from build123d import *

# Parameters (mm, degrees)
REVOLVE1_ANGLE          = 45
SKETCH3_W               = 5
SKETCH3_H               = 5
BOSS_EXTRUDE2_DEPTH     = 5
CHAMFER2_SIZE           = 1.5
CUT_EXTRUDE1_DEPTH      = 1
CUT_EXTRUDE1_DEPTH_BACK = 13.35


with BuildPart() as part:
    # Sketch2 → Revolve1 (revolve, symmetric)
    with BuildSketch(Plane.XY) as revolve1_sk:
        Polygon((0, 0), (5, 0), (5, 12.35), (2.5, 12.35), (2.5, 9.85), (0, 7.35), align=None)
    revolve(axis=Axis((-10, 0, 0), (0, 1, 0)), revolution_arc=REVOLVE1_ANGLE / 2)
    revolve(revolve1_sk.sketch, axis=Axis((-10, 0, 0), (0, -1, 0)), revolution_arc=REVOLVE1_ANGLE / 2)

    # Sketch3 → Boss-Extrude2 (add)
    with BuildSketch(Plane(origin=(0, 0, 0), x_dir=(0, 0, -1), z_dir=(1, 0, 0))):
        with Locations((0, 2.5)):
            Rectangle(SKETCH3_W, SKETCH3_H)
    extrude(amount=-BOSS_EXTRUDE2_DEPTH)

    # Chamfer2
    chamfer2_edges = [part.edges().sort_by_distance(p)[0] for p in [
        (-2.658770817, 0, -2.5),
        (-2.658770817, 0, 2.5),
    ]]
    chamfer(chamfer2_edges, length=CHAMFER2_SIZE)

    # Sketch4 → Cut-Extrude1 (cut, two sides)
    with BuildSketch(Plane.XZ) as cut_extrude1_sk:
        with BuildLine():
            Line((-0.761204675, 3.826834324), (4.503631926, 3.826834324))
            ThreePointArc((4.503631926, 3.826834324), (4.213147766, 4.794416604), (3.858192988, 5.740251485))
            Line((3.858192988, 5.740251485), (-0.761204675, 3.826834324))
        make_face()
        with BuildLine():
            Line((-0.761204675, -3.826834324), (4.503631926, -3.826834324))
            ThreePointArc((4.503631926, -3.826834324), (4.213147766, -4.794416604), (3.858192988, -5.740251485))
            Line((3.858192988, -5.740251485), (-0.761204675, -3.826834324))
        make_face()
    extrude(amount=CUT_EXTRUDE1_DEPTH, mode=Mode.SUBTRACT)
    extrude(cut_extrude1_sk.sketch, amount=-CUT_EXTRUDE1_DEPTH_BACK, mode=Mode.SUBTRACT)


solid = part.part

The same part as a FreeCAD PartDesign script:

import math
import FreeCAD as App
import Part
import Sketcher

V = App.Vector
Q = App.Units.Quantity


def edges_at(feature, points):
    """Names of the edges that pass closest to the given points."""
    edges = feature.Shape.Edges
    near = lambda p: min(range(len(edges)), key=lambda i: edges[i].distToShape(Part.Vertex(*p))[0])
    return sorted({f"Edge{near(p) + 1}" for p in points})


def add_polygon(sketch, points):
    """Adds a closed chain of lines whose ends are joined by coincident constraints."""
    first, n = sketch.GeometryCount, len(points)
    for a, b in zip(points, points[1:] + points[:1]):
        sketch.addGeometry(Part.LineSegment(App.Vector(*a, 0), App.Vector(*b, 0)), False)
    for i in range(n):
        sketch.addConstraint(Sketcher.Constraint("Coincident", first + i, 2, first + (i + 1) % n, 1))

doc = App.newDocument("Part")
body = doc.addObject("PartDesign::Body", "Body")

sketch1 = body.newObject("Sketcher::SketchObject", "Sketch")
sketch1.AttachmentSupport = (doc.getObject("XY_Plane"), [""])
sketch1.MapMode = "FlatFace"
add_polygon(sketch1, [(0, 0), (5, 0), (5, 12.3), (2.5, 12.3), (2.5, 9.8), (0, 7.3)])
sketch1.addGeometry(Part.LineSegment(V(-10, 0, 0), V(-10, 12.3, 0)), True)
sketch1.addConstraint(Sketcher.Constraint("Horizontal", 0))
sketch1.addConstraint(Sketcher.Constraint("Vertical", 1))
sketch1.addConstraint(Sketcher.Constraint("Horizontal", 2))
sketch1.addConstraint(Sketcher.Constraint("Vertical", 3))
sketch1.addConstraint(Sketcher.Constraint("Vertical", 5))
sketch1.addConstraint(Sketcher.Constraint("Vertical", 6))
sketch1.addConstraint(Sketcher.Constraint("Coincident", 5, 2, -1, 1))
sketch1.addConstraint(Sketcher.Constraint("PointOnObject", 6, 1, -1))
sketch1.addConstraint(Sketcher.Constraint("Horizontal", 2, 2, 6, 2))
sketch1.addConstraint(Sketcher.Constraint("Equal", 2, 3))
sketch1.addConstraint(Sketcher.Constraint("DistanceX", 0, 1, 0, 2, 5.0))
sketch1.addConstraint(Sketcher.Constraint("Angle", 4, Q("-135 deg")))
sketch1.addConstraint(Sketcher.Constraint("DistanceX", 2, 2, 2, 1, 2.5))
sketch1.addConstraint(Sketcher.Constraint("DistanceX", 6, 1, -1, 1, 10.0))
sketch1.addConstraint(Sketcher.Constraint("DistanceY", 1, 1, 1, 2, 12.35))
revolution = body.newObject("PartDesign::Revolution", "Revolution")
revolution.Profile = sketch1
revolution.ReferenceAxis = (sketch1, ["Axis0"])
revolution.Angle = 22.5

sketch2 = body.newObject("Sketcher::SketchObject", "Sketch001")
sketch2.AttachmentSupport = (doc.getObject("XY_Plane"), [""])
sketch2.MapMode = "FlatFace"
add_polygon(sketch2, [(0, 0), (5, 0), (5, 12.3), (2.5, 12.3), (2.5, 9.8), (0, 7.3)])
sketch2.addGeometry(Part.LineSegment(V(-10, 12.3, 0), V(-10, 0, 0)), True)
sketch2.addConstraint(Sketcher.Constraint("Horizontal", 0))
sketch2.addConstraint(Sketcher.Constraint("Vertical", 1))
sketch2.addConstraint(Sketcher.Constraint("Horizontal", 2))
sketch2.addConstraint(Sketcher.Constraint("Vertical", 3))
sketch2.addConstraint(Sketcher.Constraint("Vertical", 5))
sketch2.addConstraint(Sketcher.Constraint("Vertical", 6))
sketch2.addConstraint(Sketcher.Constraint("Coincident", 5, 2, -1, 1))
sketch2.addConstraint(Sketcher.Constraint("PointOnObject", 6, 2, -1))
sketch2.addConstraint(Sketcher.Constraint("Horizontal", 2, 2, 6, 1))
sketch2.addConstraint(Sketcher.Constraint("Equal", 2, 3))
sketch2.addConstraint(Sketcher.Constraint("DistanceX", 0, 1, 0, 2, 5.0))
sketch2.addConstraint(Sketcher.Constraint("Angle", 4, Q("-135 deg")))
sketch2.addConstraint(Sketcher.Constraint("DistanceX", 2, 2, 2, 1, 2.5))
sketch2.addConstraint(Sketcher.Constraint("DistanceX", 6, 1, -1, 1, 10.0))
sketch2.addConstraint(Sketcher.Constraint("DistanceY", 1, 1, 1, 2, 12.35))
revolution2 = body.newObject("PartDesign::Revolution", "Revolution001")
revolution2.Profile = sketch2
revolution2.ReferenceAxis = (sketch2, ["Axis0"])
revolution2.Angle = 22.5

sketch3 = body.newObject("Sketcher::SketchObject", "Sketch002")
sketch3.AttachmentSupport = (doc.getObject("YZ_Plane"), [""])
sketch3.MapMode = "FlatFace"
add_polygon(sketch3, [(5, 2), (0, 2), (0, -2), (5, -2)])
sketch3.addConstraint(Sketcher.Constraint("Horizontal", 0))
sketch3.addConstraint(Sketcher.Constraint("Vertical", 1))
sketch3.addConstraint(Sketcher.Constraint("Horizontal", 2))
sketch3.addConstraint(Sketcher.Constraint("Vertical", 3))
sketch3.addConstraint(Sketcher.Constraint("Symmetric", 0, 2, 1, 2, -1, 1))
sketch3.addConstraint(Sketcher.Constraint("Equal", 2, 1))
sketch3.addConstraint(Sketcher.Constraint("DistanceX", 0, 2, 0, 1, 5.0))
pad1 = body.newObject("PartDesign::Pad", "Pad")
pad1.Profile = sketch3
pad1.Length = 5
pad1.Reversed = True
doc.recompute()

chamfer = body.newObject("PartDesign::Chamfer", "Chamfer")
chamfer.Base = (pad1, edges_at(pad1, [(-2.659, 0, -2.5), (-2.659, 0, 2.5)]))
chamfer.Size = 1.5

sketch4 = body.newObject("Sketcher::SketchObject", "Sketch003")
sketch4.AttachmentSupport = (doc.getObject("XZ_Plane"), [""])
sketch4.MapMode = "FlatFace"
sketch4.addGeometry(Part.LineSegment(V(-0.8, 3.8, 0), V(4.5, 3.8, 0)), False)
sketch4.addGeometry(Part.ArcOfCircle(Part.Circle(V(-10, 0, 0), V(0, 0, 1), 15), math.radians(14.78), math.radians(22.5)), False)
sketch4.addGeometry(Part.LineSegment(V(3.9, 5.7, 0), V(-0.8, 3.8, 0)), False)
sketch4.addGeometry(Part.LineSegment(V(4.5, -3.8, 0), V(-0.8, -3.8, 0)), False)
sketch4.addGeometry(Part.LineSegment(V(-0.8, -3.8, 0), V(3.9, -5.7, 0)), False)
sketch4.addGeometry(Part.ArcOfCircle(Part.Circle(V(-10, 0, 0), V(0, 0, 1), 15), math.radians(-22.5), math.radians(-14.78)), False)
sketch4.addConstraint(Sketcher.Constraint("Coincident", 0, 2, 1, 1))
sketch4.addConstraint(Sketcher.Constraint("Coincident", 1, 2, 2, 1))
sketch4.addConstraint(Sketcher.Constraint("Coincident", 2, 2, 0, 1))
sketch4.addConstraint(Sketcher.Constraint("Coincident", 3, 2, 4, 1))
sketch4.addConstraint(Sketcher.Constraint("Coincident", 4, 2, 5, 1))
sketch4.addConstraint(Sketcher.Constraint("Coincident", 5, 2, 3, 1))
sketch4.addConstraint(Sketcher.Constraint("Horizontal", 0))
sketch4.addConstraint(Sketcher.Constraint("Horizontal", 3))
sketch4.addConstraint(Sketcher.Constraint("Coincident", 5, 3, 1, 3))
sketch4.addConstraint(Sketcher.Constraint("Equal", 1, 5))
sketch4.addConstraint(Sketcher.Constraint("Symmetric", 2, 2, 3, 2, -1))
sketch4.addConstraint(Sketcher.Constraint("Symmetric", 1, 2, 4, 2, -1))
sketch4.addConstraint(Sketcher.Constraint("Radius", 1, 15.0))
sketch4.addConstraint(Sketcher.Constraint("Distance", 2, 5.0))
sketch4.addConstraint(Sketcher.Constraint("DistanceX", 1, 3, -1, 1, 10.0))
sketch4.addConstraint(Sketcher.Constraint("Angle", 2, Q("-157.5 deg")))
sketch4.addConstraint(Sketcher.Constraint("DistanceX", 0, 1, 0, 2, 5.264837))
pocket1 = body.newObject("PartDesign::Pocket", "Pocket")
pocket1.Profile = sketch4
pocket1.Type = "ThroughAll"
pocket1.Midplane = True

doc.recompute()
